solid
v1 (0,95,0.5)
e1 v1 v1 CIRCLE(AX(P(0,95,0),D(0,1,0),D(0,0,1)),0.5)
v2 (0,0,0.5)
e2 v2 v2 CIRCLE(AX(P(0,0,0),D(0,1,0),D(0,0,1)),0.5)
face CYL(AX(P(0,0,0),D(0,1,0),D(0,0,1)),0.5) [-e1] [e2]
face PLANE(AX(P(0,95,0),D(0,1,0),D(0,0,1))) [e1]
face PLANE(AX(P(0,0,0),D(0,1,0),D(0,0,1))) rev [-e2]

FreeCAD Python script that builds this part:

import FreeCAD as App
import Part
import Sketcher

V = App.Vector
Q = App.Units.Quantity

doc = App.newDocument("Part")
body = doc.addObject("PartDesign::Body", "Body")

sketch1 = body.newObject("Sketcher::SketchObject", "Sketch")
sketch1.AttachmentSupport = (doc.getObject("XZ_Plane"), [""])
sketch1.MapMode = "FlatFace"
sketch1.addGeometry(Part.Circle(V(0, 0, 0), V(0, 0, 1), 0.5), False)
sketch1.addConstraint([
    Sketcher.Constraint("Coincident", 0, 3, -1, 1),
    Sketcher.Constraint("Diameter", 0, Q("1 mm")),
])

sketch2 = body.newObject("Sketcher::SketchObject", "Sketch001")
sketch2.AttachmentSupport = (doc.getObject("XY_Plane"), [""])
sketch2.MapMode = "FlatFace"
sketch2.addGeometry(Part.LineSegment(V(0, 0, 0), V(0, 95, 0)), False)
sketch2.addConstraint([
    Sketcher.Constraint("Vertical", 0),
    Sketcher.Constraint("Coincident", 0, 1, -1, 1),
    Sketcher.Constraint("DistanceY", 0, 1, 0, 2, Q("95 mm")),
])
doc.recompute()

additivepipe = body.newObject("PartDesign::AdditivePipe", "AdditivePipe")
additivepipe.Profile = sketch1
additivepipe.Spine = (sketch2, ["Edge1"])

doc.recompute()
